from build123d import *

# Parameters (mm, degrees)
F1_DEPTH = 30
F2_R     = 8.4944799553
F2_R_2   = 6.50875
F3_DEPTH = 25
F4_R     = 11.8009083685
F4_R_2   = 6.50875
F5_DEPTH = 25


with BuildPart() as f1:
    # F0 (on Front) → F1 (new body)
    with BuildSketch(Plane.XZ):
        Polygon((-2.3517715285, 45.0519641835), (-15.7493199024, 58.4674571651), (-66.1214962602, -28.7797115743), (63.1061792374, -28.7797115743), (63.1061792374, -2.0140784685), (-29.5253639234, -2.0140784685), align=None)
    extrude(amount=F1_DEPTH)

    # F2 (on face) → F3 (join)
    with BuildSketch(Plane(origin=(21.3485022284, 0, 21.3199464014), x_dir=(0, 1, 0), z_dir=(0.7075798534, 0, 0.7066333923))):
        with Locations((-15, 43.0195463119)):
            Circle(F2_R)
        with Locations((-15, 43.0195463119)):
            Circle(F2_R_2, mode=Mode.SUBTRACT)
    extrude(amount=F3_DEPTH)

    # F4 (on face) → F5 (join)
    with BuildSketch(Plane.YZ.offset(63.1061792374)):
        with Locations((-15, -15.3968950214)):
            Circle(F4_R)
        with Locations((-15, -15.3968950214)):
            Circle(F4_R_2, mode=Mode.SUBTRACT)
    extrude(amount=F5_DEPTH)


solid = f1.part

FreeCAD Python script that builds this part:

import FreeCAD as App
import Part
import Sketcher
from FreeCAD import Vector
Q = App.Units.Quantity

doc = App.newDocument("Part")
body = doc.addObject("PartDesign::Body", "Body")

# Sketch on XZ plane
sketch1 = body.newObject("Sketcher::SketchObject", "Sketch")
sketch1.AttachmentSupport = (doc.getObject("XZ_Plane"), [""])
sketch1.MapMode = "FlatFace"
sketch1.addGeometry([
    Part.LineSegment(Vector(-2.351772, 45.051964, 0), Vector(-15.74932, 58.467457, 0)),  # 0
    Part.LineSegment(Vector(-15.74932, 58.467457, 0), Vector(-66.121496, -28.779712, 0)),  # 1
    Part.LineSegment(Vector(-66.121496, -28.779712, 0), Vector(63.106179, -28.779712, 0)),  # 2
    Part.LineSegment(Vector(63.106179, -28.779712, 0), Vector(63.106179, -2.014078, 0)),  # 3
    Part.LineSegment(Vector(63.106179, -2.014078, 0), Vector(-29.525364, -2.014078, 0)),  # 4
    Part.LineSegment(Vector(-29.525364, -2.014078, 0), Vector(-2.351772, 45.051964, 0)),  # 5
], False)
sketch1.addConstraint([
    Sketcher.Constraint("Coincident", 0, 2, 1, 1),
    Sketcher.Constraint("Coincident", 1, 2, 2, 1),
    Sketcher.Constraint("Coincident", 2, 2, 3, 1),
    Sketcher.Constraint("Coincident", 3, 2, 4, 1),
    Sketcher.Constraint("Coincident", 4, 2, 5, 1),
    Sketcher.Constraint("Coincident", 5, 2, 0, 1),
    Sketcher.Constraint("Horizontal", 2),
    Sketcher.Constraint("Vertical", 3),
    Sketcher.Constraint("Horizontal", 4),
    Sketcher.Constraint("Parallel", 1, 5),
    Sketcher.Constraint("Angle", 1, Q("-120 deg")),
    Sketcher.Constraint("DistanceX", 0, 2, 2, 2, Q("78.855499 mm")),
    Sketcher.Constraint("DistanceX", 2, 1, 2, 2, Q("129.227675 mm")),
    Sketcher.Constraint("DistanceX", 4, 2, 4, 1, Q("92.631543 mm")),
    Sketcher.Constraint("DistanceY", 3, 1, 3, 2, Q("26.765633 mm")),
    Sketcher.Constraint("DistanceX", 0, 2, -1, 1, Q("15.74932 mm")),
    Sketcher.Constraint("DistanceY", 1, 2, -1, 1, Q("28.779712 mm")),
    Sketcher.Constraint("DistanceX", 5, 2, -1, 1, Q("2.351772 mm")),
])
pad1 = body.newObject("PartDesign::Pad", "Pad")
pad1.Profile = sketch1
pad1.Length = 30

# Sketch on an angled plane
sketch2 = body.newObject("Sketcher::SketchObject", "Sketch001")
sketch2.Placement = App.Placement(Vector(21.348502, 0, 21.319946), App.Rotation(Vector(0, 1, 0), Vector(-0.706633392, 0, 0.707579853), Vector(0.707579853, 0, 0.706633392), "ZXY"))
sketch2.addGeometry([
    Part.Circle(Vector(-15, 43.019546, 0), Vector(0, 0, 1), 8.49448),
    Part.Circle(Vector(-15, 43.019546, 0), Vector(0, 0, 1), 6.50875),
], False)
sketch2.addConstraint([
    Sketcher.Constraint("Coincident", 1, 3, 0, 3),
    Sketcher.Constraint("DistanceX", 0, 3, -1, 1, Q("15 mm")),
    Sketcher.Constraint("Diameter", 1, Q("13.0175 mm")),
    Sketcher.Constraint("Diameter", 0, Q("16.98896 mm")),
    Sketcher.Constraint("DistanceY", -1, 1, 0, 3, Q("43.019546 mm")),
])
pad2 = body.newObject("PartDesign::Pad", "Pad001")
pad2.Profile = sketch2
pad2.Length = 25

# Sketch on YZ plane
sketch3 = body.newObject("Sketcher::SketchObject", "Sketch002")
sketch3.AttachmentSupport = (doc.getObject("YZ_Plane"), [""])
sketch3.MapMode = "FlatFace"
sketch3.AttachmentOffset = App.Placement(Vector(0, 0, 63.106179), App.Rotation())
sketch3.addGeometry([
    Part.Circle(Vector(-15, -15.396895, 0), Vector(0, 0, 1), 11.800908),
    Part.Circle(Vector(-15, -15.396895, 0), Vector(0, 0, 1), 6.50875),
], False)
sketch3.addConstraint([
    Sketcher.Constraint("Coincident", 1, 3, 0, 3),
    Sketcher.Constraint("DistanceX", 0, 3, -1, 1, Q("15 mm")),
    Sketcher.Constraint("Diameter", 1, Q("13.0175 mm")),
    Sketcher.Constraint("Diameter", 0, Q("23.601817 mm")),
    Sketcher.Constraint("DistanceY", 0, 3, -1, 1, Q("15.396895 mm")),
])
pad3 = body.newObject("PartDesign::Pad", "Pad002")
pad3.Profile = sketch3
pad3.Length = 25

doc.recompute()
